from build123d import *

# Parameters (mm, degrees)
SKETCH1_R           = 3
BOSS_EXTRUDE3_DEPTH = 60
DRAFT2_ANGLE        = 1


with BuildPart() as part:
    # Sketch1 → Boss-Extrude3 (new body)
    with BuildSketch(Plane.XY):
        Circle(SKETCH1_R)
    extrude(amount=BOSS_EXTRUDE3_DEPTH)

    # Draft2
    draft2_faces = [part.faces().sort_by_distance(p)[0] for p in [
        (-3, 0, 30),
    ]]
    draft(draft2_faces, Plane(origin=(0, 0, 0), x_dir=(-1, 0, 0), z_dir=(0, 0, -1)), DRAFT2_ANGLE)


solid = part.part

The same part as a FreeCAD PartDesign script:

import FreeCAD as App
import Part
import Sketcher
Q = App.Units.Quantity


def faces_at(feature, points):
    """Names of the faces that lie closest to the given points."""
    faces = feature.Shape.Faces
    near = lambda p: min(range(len(faces)), key=lambda i: faces[i].distToShape(Part.Vertex(*p))[0])
    return sorted({f"Face{near(p) + 1}" for p in points})

doc = App.newDocument("Part")
params = doc.addObject("Spreadsheet::Sheet", "Params")
for row, (alias, value) in enumerate([
    ("sketch1_diameter", "6 mm"),
    ("pad1_length", "60 mm"),
    ("draft_angle", "1 deg"),
], start=1):
    params.set(f"A{row}", alias)
    params.set(f"B{row}", "=" + value)
    params.setAlias(f"B{row}", alias)

body = doc.addObject("PartDesign::Body", "Body")

# Sketch on XY plane
sketch1 = body.newObject("Sketcher::SketchObject", "Sketch")
sketch1.AttachmentSupport = (doc.getObject("XY_Plane"), [""])
sketch1.MapMode = "FlatFace"
sketch1.addGeometry(Part.Circle(App.Vector(0, 0, 0), App.Vector(0, 0, 1), 3), False)
sketch1.addConstraint([
    Sketcher.Constraint("Coincident", 0, 3, -1, 1),
    Sketcher.Constraint("Diameter", 0, Q("6 mm")),
])
sketch1.setExpression("Constraints[1]", "Params.sketch1_diameter")
pad1 = body.newObject("PartDesign::Pad", "Pad")
pad1.Profile = sketch1
pad1.setExpression("Length", "Params.pad1_length")
doc.recompute()

draft = body.newObject("PartDesign::Draft", "Draft")
draft.Base = (pad1, faces_at(pad1, [(-3, 0, 30)]))
draft.NeutralPlane = (doc.getObject("XY_Plane"), [""])
draft.setExpression("Angle", "Params.draft_angle")
draft.Reversed = True

doc.recompute()
